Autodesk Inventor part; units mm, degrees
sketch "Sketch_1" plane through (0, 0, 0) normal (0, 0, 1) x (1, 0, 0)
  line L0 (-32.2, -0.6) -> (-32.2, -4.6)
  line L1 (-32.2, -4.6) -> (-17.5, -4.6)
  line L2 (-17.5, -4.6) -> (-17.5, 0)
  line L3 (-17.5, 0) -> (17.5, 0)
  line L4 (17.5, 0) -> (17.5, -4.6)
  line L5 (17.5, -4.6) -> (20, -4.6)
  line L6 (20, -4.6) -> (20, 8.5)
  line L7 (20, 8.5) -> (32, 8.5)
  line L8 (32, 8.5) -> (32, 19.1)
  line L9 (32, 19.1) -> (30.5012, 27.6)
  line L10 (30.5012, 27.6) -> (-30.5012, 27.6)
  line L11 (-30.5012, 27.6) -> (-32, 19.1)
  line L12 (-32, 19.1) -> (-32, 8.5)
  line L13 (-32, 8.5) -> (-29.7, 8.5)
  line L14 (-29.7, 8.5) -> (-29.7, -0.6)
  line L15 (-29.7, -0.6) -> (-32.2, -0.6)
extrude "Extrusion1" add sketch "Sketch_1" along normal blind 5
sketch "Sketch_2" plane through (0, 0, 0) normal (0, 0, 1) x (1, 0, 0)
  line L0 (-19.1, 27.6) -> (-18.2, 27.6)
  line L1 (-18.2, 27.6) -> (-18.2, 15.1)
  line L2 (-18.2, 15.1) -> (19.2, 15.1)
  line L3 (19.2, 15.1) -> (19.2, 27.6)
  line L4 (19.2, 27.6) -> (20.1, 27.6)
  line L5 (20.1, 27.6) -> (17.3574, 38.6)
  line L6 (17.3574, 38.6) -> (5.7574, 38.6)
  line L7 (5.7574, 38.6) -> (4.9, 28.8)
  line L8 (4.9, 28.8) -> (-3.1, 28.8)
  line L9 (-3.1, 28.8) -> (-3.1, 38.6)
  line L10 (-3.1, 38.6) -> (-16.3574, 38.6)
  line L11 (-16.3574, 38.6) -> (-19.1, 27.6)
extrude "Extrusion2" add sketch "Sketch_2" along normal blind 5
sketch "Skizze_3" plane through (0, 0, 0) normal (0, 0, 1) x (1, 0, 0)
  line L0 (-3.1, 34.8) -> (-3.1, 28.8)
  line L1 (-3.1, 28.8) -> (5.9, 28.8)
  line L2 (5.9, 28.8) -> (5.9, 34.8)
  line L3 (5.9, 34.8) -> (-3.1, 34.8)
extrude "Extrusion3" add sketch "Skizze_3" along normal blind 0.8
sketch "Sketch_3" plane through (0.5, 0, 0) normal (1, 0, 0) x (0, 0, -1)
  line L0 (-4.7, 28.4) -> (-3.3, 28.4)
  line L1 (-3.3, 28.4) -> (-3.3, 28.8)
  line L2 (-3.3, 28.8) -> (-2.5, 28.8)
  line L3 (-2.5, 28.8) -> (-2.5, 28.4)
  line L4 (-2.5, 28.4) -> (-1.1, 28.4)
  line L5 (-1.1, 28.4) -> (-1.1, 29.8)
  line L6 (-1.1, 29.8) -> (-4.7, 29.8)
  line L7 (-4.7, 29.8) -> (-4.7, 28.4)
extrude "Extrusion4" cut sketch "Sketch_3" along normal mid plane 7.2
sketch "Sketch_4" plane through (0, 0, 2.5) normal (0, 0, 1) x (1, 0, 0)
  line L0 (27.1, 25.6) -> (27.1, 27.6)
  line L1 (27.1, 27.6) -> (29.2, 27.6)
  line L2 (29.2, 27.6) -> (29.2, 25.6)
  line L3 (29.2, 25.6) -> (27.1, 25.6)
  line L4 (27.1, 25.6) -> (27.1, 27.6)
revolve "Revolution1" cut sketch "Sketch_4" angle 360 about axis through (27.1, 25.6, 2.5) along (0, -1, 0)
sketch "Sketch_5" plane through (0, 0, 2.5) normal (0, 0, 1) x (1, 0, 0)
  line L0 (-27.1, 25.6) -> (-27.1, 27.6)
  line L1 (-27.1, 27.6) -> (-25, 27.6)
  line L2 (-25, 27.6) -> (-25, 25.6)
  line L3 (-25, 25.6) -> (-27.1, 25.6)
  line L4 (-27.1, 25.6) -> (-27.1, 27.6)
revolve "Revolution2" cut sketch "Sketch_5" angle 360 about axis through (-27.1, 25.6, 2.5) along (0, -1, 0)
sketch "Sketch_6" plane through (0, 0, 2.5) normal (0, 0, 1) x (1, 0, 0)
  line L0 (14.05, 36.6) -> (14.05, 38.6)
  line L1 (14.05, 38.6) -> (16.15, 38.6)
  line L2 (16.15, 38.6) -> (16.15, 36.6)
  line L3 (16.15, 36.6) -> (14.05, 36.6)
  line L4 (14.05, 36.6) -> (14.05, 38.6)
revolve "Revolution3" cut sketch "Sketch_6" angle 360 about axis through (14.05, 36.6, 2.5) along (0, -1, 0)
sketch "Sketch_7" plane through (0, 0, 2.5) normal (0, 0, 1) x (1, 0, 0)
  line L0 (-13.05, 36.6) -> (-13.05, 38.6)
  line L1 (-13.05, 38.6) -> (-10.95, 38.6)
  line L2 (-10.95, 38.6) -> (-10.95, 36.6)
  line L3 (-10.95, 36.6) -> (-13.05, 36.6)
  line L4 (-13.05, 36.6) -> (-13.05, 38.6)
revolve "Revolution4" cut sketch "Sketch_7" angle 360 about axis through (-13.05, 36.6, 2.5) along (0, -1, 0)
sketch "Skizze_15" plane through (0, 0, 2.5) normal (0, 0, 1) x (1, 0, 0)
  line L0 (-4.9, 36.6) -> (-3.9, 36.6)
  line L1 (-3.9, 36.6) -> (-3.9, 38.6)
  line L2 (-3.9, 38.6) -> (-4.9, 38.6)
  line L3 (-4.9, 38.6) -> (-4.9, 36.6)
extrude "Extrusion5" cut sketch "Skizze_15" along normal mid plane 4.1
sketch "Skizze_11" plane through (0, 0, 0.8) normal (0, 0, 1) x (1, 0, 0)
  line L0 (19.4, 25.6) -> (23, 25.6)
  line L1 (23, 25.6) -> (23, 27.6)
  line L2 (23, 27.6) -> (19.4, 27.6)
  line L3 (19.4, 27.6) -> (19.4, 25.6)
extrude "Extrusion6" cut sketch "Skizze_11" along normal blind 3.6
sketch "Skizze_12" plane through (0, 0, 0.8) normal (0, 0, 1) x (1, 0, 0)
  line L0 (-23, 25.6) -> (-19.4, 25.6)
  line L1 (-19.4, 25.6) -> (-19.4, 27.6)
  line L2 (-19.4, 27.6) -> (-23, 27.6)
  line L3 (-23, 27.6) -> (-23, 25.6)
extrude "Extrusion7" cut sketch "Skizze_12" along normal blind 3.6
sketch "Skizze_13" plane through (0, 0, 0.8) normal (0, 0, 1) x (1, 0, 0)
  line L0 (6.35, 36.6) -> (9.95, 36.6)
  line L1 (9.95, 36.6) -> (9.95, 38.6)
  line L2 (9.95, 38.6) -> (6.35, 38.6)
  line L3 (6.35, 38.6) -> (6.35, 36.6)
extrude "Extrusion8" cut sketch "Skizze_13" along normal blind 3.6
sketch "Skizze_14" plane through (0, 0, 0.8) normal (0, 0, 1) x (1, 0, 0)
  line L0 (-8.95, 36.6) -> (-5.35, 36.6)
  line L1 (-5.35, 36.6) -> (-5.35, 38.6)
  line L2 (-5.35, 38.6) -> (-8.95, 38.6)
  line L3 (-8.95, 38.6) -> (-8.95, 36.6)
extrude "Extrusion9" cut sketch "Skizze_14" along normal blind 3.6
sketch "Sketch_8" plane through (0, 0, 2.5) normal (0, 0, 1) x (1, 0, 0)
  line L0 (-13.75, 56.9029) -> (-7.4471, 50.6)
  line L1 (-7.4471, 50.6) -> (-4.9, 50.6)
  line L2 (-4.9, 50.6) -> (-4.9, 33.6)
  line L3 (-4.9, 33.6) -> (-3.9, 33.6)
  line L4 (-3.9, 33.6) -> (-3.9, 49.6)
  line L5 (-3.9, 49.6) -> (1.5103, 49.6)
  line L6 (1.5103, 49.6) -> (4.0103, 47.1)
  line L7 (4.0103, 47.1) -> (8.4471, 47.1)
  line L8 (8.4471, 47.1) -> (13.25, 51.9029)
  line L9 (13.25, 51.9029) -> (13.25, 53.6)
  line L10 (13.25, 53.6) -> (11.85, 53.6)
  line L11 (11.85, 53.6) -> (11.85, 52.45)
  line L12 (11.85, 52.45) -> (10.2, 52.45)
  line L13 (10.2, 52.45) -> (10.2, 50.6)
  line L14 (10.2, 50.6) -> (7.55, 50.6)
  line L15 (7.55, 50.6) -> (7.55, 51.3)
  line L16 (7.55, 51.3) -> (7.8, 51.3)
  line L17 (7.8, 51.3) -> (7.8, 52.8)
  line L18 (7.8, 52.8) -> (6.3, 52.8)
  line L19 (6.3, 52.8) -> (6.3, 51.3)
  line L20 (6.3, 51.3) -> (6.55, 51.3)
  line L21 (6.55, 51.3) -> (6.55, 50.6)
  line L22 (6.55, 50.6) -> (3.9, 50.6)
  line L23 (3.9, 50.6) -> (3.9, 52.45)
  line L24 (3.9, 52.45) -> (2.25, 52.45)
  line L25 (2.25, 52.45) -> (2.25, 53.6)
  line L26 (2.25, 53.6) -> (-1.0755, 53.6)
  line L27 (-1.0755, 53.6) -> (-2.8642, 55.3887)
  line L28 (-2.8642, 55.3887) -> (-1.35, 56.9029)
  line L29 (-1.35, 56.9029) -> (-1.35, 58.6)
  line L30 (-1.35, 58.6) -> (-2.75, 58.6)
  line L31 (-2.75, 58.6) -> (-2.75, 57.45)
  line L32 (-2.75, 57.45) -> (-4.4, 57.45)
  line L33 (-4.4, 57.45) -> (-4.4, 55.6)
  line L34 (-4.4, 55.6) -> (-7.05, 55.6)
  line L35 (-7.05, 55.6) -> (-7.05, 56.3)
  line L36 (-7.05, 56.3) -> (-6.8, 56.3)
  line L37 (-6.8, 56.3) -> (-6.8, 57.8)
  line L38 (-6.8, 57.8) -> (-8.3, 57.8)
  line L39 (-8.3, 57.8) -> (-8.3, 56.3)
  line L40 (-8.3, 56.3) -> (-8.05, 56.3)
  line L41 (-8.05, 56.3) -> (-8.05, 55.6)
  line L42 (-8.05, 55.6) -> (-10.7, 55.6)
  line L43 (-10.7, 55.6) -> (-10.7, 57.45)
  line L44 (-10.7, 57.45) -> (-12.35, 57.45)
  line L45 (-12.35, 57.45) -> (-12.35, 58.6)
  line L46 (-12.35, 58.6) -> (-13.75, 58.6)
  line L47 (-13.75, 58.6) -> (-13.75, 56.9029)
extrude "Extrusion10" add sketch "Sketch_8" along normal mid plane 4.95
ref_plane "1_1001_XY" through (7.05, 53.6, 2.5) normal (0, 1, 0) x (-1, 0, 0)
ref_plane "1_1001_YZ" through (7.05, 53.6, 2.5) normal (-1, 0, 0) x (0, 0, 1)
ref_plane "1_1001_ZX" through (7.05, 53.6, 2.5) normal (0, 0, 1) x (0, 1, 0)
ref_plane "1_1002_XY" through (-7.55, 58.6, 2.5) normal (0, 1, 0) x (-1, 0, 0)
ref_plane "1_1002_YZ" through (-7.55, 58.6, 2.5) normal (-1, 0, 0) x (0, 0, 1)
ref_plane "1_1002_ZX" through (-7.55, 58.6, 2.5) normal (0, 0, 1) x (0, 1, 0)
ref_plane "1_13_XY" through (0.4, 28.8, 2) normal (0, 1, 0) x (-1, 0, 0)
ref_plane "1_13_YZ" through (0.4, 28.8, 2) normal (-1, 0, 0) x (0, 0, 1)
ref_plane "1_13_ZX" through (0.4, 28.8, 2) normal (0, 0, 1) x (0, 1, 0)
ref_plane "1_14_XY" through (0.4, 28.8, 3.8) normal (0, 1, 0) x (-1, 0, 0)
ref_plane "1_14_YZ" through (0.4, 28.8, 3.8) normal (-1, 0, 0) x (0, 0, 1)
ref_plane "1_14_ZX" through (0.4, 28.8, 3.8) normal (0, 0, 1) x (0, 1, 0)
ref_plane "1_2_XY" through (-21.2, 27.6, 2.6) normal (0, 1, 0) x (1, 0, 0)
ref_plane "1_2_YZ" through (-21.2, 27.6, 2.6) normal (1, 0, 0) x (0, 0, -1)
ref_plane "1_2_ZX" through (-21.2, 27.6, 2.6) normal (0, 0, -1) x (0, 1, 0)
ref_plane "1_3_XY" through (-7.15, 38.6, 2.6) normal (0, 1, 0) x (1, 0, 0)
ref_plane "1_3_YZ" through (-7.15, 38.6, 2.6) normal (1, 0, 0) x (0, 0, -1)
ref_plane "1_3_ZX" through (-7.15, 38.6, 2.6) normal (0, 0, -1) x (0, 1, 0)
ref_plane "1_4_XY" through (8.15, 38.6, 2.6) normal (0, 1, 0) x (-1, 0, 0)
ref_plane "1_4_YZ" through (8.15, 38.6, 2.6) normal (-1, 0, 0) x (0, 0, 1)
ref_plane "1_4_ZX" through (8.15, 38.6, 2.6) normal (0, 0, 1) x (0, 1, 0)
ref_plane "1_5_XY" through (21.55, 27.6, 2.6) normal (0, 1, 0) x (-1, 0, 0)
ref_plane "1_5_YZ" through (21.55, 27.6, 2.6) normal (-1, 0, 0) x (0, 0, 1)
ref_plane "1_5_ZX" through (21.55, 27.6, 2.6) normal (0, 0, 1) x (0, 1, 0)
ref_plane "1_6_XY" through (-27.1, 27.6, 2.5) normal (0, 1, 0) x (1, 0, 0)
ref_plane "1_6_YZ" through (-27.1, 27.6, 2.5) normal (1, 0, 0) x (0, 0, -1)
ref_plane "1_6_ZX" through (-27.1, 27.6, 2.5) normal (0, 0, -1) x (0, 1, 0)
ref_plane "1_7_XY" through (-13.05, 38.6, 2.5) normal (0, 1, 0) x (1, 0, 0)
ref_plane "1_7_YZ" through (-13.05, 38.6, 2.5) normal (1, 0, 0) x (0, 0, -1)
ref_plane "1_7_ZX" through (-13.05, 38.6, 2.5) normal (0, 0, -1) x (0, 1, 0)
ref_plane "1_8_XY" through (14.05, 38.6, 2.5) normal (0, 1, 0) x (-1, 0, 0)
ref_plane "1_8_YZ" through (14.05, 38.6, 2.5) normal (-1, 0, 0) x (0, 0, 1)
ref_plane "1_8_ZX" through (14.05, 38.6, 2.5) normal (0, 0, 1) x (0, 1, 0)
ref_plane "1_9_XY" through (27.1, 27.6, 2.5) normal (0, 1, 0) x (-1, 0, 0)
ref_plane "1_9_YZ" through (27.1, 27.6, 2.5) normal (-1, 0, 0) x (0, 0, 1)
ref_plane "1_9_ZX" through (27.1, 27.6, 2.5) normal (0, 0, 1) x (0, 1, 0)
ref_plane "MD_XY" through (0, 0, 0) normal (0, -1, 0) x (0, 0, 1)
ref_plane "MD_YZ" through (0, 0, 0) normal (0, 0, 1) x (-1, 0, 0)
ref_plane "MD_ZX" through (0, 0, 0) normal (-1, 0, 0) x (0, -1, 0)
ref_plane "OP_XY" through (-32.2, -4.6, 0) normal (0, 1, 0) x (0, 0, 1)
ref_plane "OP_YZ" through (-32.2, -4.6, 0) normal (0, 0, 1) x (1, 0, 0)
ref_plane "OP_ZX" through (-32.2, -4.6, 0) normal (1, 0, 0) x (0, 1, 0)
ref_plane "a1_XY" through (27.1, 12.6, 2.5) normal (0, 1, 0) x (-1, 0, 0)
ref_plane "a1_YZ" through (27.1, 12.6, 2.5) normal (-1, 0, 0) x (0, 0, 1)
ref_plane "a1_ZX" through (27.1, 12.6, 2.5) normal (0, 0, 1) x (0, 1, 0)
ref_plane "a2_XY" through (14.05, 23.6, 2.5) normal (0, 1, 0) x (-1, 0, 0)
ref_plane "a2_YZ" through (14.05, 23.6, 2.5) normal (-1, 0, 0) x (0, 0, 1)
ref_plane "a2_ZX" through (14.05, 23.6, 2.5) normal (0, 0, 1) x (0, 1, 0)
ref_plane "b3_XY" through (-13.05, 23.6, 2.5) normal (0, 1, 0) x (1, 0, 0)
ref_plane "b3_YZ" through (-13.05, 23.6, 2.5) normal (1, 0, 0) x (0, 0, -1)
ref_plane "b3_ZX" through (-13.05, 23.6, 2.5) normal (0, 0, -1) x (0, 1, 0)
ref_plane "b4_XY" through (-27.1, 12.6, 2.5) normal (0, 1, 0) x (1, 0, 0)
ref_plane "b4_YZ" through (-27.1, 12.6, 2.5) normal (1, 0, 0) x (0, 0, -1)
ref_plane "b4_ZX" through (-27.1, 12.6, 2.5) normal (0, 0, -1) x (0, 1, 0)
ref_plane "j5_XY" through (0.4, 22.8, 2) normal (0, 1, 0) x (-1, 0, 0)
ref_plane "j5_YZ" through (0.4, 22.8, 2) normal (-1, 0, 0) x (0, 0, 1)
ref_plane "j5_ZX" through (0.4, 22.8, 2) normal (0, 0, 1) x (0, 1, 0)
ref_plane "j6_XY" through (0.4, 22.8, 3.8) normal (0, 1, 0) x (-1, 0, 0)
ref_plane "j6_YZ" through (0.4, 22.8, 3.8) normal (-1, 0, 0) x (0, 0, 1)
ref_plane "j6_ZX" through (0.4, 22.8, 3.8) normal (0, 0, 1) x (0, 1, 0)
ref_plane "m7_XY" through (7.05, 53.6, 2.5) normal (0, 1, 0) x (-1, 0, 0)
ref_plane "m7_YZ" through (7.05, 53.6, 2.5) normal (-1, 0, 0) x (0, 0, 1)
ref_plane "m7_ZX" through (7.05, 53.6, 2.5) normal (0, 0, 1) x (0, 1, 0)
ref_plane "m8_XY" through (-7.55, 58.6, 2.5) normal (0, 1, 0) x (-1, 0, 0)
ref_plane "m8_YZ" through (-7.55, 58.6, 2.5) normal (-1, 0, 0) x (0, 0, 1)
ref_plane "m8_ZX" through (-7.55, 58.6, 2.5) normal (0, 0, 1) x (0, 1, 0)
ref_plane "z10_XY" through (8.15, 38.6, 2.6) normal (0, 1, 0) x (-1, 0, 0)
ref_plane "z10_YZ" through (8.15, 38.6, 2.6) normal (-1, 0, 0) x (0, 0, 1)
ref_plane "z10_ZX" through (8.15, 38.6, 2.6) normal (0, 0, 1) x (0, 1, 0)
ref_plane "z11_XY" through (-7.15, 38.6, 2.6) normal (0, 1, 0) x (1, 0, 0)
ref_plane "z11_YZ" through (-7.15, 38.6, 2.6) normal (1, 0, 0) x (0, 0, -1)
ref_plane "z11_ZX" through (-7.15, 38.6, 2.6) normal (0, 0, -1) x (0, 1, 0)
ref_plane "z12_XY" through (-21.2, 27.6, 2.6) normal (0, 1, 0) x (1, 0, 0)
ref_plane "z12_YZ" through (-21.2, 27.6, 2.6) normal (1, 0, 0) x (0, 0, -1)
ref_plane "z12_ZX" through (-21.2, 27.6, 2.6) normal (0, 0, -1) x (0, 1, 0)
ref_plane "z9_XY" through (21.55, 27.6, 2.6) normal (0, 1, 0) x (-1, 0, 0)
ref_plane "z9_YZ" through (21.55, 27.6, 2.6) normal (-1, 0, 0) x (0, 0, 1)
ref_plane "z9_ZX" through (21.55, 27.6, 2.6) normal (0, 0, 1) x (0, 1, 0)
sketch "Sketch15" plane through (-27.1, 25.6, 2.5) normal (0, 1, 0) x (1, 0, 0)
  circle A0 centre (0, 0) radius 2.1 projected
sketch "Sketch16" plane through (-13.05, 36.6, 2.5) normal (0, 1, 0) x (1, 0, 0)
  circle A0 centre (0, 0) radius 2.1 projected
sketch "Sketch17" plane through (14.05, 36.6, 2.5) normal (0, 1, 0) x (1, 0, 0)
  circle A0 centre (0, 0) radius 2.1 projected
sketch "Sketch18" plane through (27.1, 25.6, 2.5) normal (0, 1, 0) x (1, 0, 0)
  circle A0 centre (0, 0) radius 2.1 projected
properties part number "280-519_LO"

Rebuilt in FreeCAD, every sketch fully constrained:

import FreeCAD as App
import Part
import Sketcher
from FreeCAD import Vector
Q = App.Units.Quantity


def add_polygon(sketch, points):
    """Adds a closed chain of lines whose ends are joined by coincident constraints."""
    first, n = sketch.GeometryCount, len(points)
    for a, b in zip(points, points[1:] + points[:1]):
        sketch.addGeometry(Part.LineSegment(App.Vector(*a, 0), App.Vector(*b, 0)), False)
    for i in range(n):
        sketch.addConstraint(Sketcher.Constraint("Coincident", first + i, 2, first + (i + 1) % n, 1))

doc = App.newDocument("Part")
body = doc.addObject("PartDesign::Body", "Body")

# Sketch on XY plane
sketch1 = body.newObject("Sketcher::SketchObject", "Sketch")
sketch1.AttachmentSupport = (doc.getObject("XY_Plane"), [""])
sketch1.MapMode = "FlatFace"
add_polygon(sketch1, [(-29.7, -0.6), (-32.2, -0.6), (-32.2, -4.6), (-17.5, -4.6), (-17.5, 0), (17.5, 0), (17.5, -4.6), (20, -4.6), (20, 8.5), (32, 8.5), (32, 19.1), (30.5012, 27.6), (-30.5012, 27.6), (-32, 19.1), (-32, 8.5), (-29.7, 8.5)])  # lines 0-15
sketch1.addConstraint(Sketcher.Constraint("Horizontal", 0))
sketch1.addConstraint(Sketcher.Constraint("Vertical", 1))
sketch1.addConstraint(Sketcher.Constraint("Horizontal", 2))
sketch1.addConstraint(Sketcher.Constraint("Vertical", 3))
sketch1.addConstraint(Sketcher.Constraint("Horizontal", 4))
sketch1.addConstraint(Sketcher.Constraint("Vertical", 5))
sketch1.addConstraint(Sketcher.Constraint("Horizontal", 6))
sketch1.addConstraint(Sketcher.Constraint("Vertical", 7))
sketch1.addConstraint(Sketcher.Constraint("Horizontal", 8))
sketch1.addConstraint(Sketcher.Constraint("Vertical", 9))
sketch1.addConstraint(Sketcher.Constraint("Horizontal", 11))
sketch1.addConstraint(Sketcher.Constraint("Vertical", 13))
sketch1.addConstraint(Sketcher.Constraint("Horizontal", 14))
sketch1.addConstraint(Sketcher.Constraint("Vertical", 15))
sketch1.addConstraint(Sketcher.Constraint("Symmetric", 3, 2, 4, 2, -1, 1))
sketch1.addConstraint(Sketcher.Constraint("Symmetric", 9, 2, 12, 2, -2))
sketch1.addConstraint(Sketcher.Constraint("Horizontal", 2, 2, 5, 2))
sketch1.addConstraint(Sketcher.Constraint("Horizontal", 8, 2, 13, 2))
sketch1.addConstraint(Sketcher.Constraint("Equal", 0, 6))
sketch1.addConstraint(Sketcher.Constraint("Equal", 10, 12))
sketch1.addConstraint(Sketcher.Constraint("DistanceX", 4, 1, 4, 2, 35.0))
sketch1.addConstraint(Sketcher.Constraint("DistanceX", 8, 1, 8, 2, 12.0))
sketch1.addConstraint(Sketcher.Constraint("DistanceY", 1, 2, 1, 1, 4.0))
sketch1.addConstraint(Sketcher.Constraint("Angle", 10, Q("100.0001 deg")))
sketch1.addConstraint(Sketcher.Constraint("DistanceX", 0, 2, 0, 1, 2.5))
sketch1.addConstraint(Sketcher.Constraint("DistanceX", 2, 1, 2, 2, 14.7))
sketch1.addConstraint(Sketcher.Constraint("DistanceY", 3, 1, 3, 2, 4.6))
sketch1.addConstraint(Sketcher.Constraint("DistanceY", 7, 1, 7, 2, 13.1))
sketch1.addConstraint(Sketcher.Constraint("DistanceY", 9, 1, 9, 2, 10.6))
sketch1.addConstraint(Sketcher.Constraint("DistanceY", -1, 1, 10, 2, 27.6))
pad1 = body.newObject("PartDesign::Pad", "Pad")
pad1.Profile = sketch1
pad1.Length = 5

# Sketch on XY plane
sketch2 = body.newObject("Sketcher::SketchObject", "Sketch001")
sketch2.AttachmentSupport = (doc.getObject("XY_Plane"), [""])
sketch2.MapMode = "FlatFace"
add_polygon(sketch2, [(-16.3574, 38.6), (-19.1, 27.6), (-18.2, 27.6), (-18.2, 15.1), (19.2, 15.1), (19.2, 27.6), (20.1, 27.6), (17.3574, 38.6), (5.7574, 38.6), (4.9, 28.8), (-3.1, 28.8), (-3.1, 38.6)])  # lines 0-11
sketch2.addConstraint(Sketcher.Constraint("Horizontal", 1))
sketch2.addConstraint(Sketcher.Constraint("Vertical", 2))
sketch2.addConstraint(Sketcher.Constraint("Horizontal", 3))
sketch2.addConstraint(Sketcher.Constraint("Vertical", 4))
sketch2.addConstraint(Sketcher.Constraint("Horizontal", 5))
sketch2.addConstraint(Sketcher.Constraint("Horizontal", 7))
sketch2.addConstraint(Sketcher.Constraint("Horizontal", 9))
sketch2.addConstraint(Sketcher.Constraint("Vertical", 10))
sketch2.addConstraint(Sketcher.Constraint("Horizontal", 11))
sketch2.addConstraint(Sketcher.Constraint("Horizontal", 1, 2, 4, 2))
sketch2.addConstraint(Sketcher.Constraint("Horizontal", 7, 2, 10, 2))
sketch2.addConstraint(Sketcher.Constraint("Equal", 1, 5))
sketch2.addConstraint(Sketcher.Constraint("Equal", 0, 6))
sketch2.addConstraint(Sketcher.Constraint("DistanceX", 9, 2, 9, 1, 8.0))
sketch2.addConstraint(Sketcher.Constraint("Angle", 0, Q("-104 deg")))
sketch2.addConstraint(Sketcher.Constraint("Angle", 8, Q("-95 deg")))
sketch2.addConstraint(Sketcher.Constraint("DistanceX", 1, 1, 1, 2, 0.9))
sketch2.addConstraint(Sketcher.Constraint("DistanceX", 3, 1, 3, 2, 37.4))
sketch2.addConstraint(Sketcher.Constraint("DistanceX", 7, 2, 7, 1, 11.6))
sketch2.addConstraint(Sketcher.Constraint("DistanceY", 2, 2, 2, 1, 12.5))
sketch2.addConstraint(Sketcher.Constraint("DistanceY", 10, 1, 10, 2, 9.8))
sketch2.addConstraint(Sketcher.Constraint("DistanceY", 4, 2, 6, 2, 11.0))
sketch2.addConstraint(Sketcher.Constraint("DistanceX", 0, 2, -1, 1, 19.1))
sketch2.addConstraint(Sketcher.Constraint("DistanceY", -1, 1, 0, 2, 27.6))
pad2 = body.newObject("PartDesign::Pad", "Pad001")
pad2.Profile = sketch2
pad2.Length = 5

# Sketch on XY plane
sketch3 = body.newObject("Sketcher::SketchObject", "Sketch002")
sketch3.AttachmentSupport = (doc.getObject("XY_Plane"), [""])
sketch3.MapMode = "FlatFace"
add_polygon(sketch3, [(5.9, 34.8), (-3.1, 34.8), (-3.1, 28.8), (5.9, 28.8)])  # lines 0-3
sketch3.addConstraint(Sketcher.Constraint("Horizontal", 0))
sketch3.addConstraint(Sketcher.Constraint("Vertical", 1))
sketch3.addConstraint(Sketcher.Constraint("Horizontal", 2))
sketch3.addConstraint(Sketcher.Constraint("Vertical", 3))
sketch3.addConstraint(Sketcher.Constraint("DistanceX", 0, 2, 0, 1, 9.0))
sketch3.addConstraint(Sketcher.Constraint("DistanceY", 1, 2, 1, 1, 6.0))
sketch3.addConstraint(Sketcher.Constraint("DistanceX", 0, 2, -1, 1, 3.1))
sketch3.addConstraint(Sketcher.Constraint("DistanceY", -1, 1, 0, 2, 34.8))
pad3 = body.newObject("PartDesign::Pad", "Pad002")
pad3.Profile = sketch3
pad3.Length = 0.8

# Sketch on YZ plane
sketch4 = body.newObject("Sketcher::SketchObject", "Sketch003")
sketch4.AttachmentSupport = (doc.getObject("YZ_Plane"), [""])
sketch4.MapMode = "FlatFace"
sketch4.AttachmentOffset = App.Placement(Vector(0, 0, 0.5), App.Rotation())
add_polygon(sketch4, [(29.8, 4.7), (28.4, 4.7), (28.4, 3.3), (28.8, 3.3), (28.8, 2.5), (28.4, 2.5), (28.4, 1.1), (29.8, 1.1)])  # lines 0-7
sketch4.addConstraint(Sketcher.Constraint("Horizontal", 0))
sketch4.addConstraint(Sketcher.Constraint("Vertical", 1))
sketch4.addConstraint(Sketcher.Constraint("Horizontal", 2))
sketch4.addConstraint(Sketcher.Constraint("Vertical", 3))
sketch4.addConstraint(Sketcher.Constraint("Horizontal", 4))
sketch4.addConstraint(Sketcher.Constraint("Vertical", 5))
sketch4.addConstraint(Sketcher.Constraint("Horizontal", 6))
sketch4.addConstraint(Sketcher.Constraint("Vertical", 7))
sketch4.addConstraint(Sketcher.Constraint("Vertical", 1, 2, 4, 2))
sketch4.addConstraint(Sketcher.Constraint("Equal", 6, 1))
sketch4.addConstraint(Sketcher.Constraint("Equal", 1, 5))
sketch4.addConstraint(Sketcher.Constraint("DistanceX", 0, 2, 0, 1, 1.4))
sketch4.addConstraint(Sketcher.Constraint("DistanceX", 2, 1, 2, 2, 0.4))
sketch4.addConstraint(Sketcher.Constraint("DistanceY", 3, 2, 3, 1, 0.8))
sketch4.addConstraint(Sketcher.Constraint("DistanceX", -1, 1, 0, 2, 28.4))
sketch4.addConstraint(Sketcher.Constraint("DistanceY", -1, 1, 0, 2, 4.7))
pocket1 = body.newObject("PartDesign::Pocket", "Pocket")
pocket1.Profile = sketch4
pocket1.Length = 7.2
pocket1.Midplane = True

# Sketch on XY plane
sketch5 = body.newObject("Sketcher::SketchObject", "Sketch004")
sketch5.AttachmentSupport = (doc.getObject("XY_Plane"), [""])
sketch5.MapMode = "FlatFace"
sketch5.AttachmentOffset = App.Placement(Vector(0, 0, 2.5), App.Rotation())
add_polygon(sketch5, [(27.1, 27.6), (27.1, 25.6), (29.2, 25.6), (29.2, 27.6)])  # lines 0-3
sketch5.addGeometry(Part.LineSegment(Vector(27.1, 27.6, 0), Vector(27.1, 25.6, 0)), True)  # axis
sketch5.addConstraint(Sketcher.Constraint("Vertical", 0))
sketch5.addConstraint(Sketcher.Constraint("Horizontal", 1))
sketch5.addConstraint(Sketcher.Constraint("Vertical", 2))
sketch5.addConstraint(Sketcher.Constraint("Horizontal", 3))
sketch5.addConstraint(Sketcher.Constraint("Vertical", 4))
sketch5.addConstraint(Sketcher.Constraint("Coincident", 4, 1, 3, 2))
sketch5.addConstraint(Sketcher.Constraint("Horizontal", 1, 2, 4, 2))
sketch5.addConstraint(Sketcher.Constraint("DistanceY", 0, 2, 0, 1, 2.0))
sketch5.addConstraint(Sketcher.Constraint("DistanceX", 1, 1, 1, 2, 2.1))
sketch5.addConstraint(Sketcher.Constraint("DistanceX", -1, 1, 0, 2, 27.1))
sketch5.addConstraint(Sketcher.Constraint("DistanceY", -1, 1, 0, 2, 25.6))
groove = body.newObject("PartDesign::Groove", "Groove")
groove.Profile = sketch5
groove.ReferenceAxis = (sketch5, ["Axis0"])
groove.Angle = 360

# Sketch on XY plane
sketch6 = body.newObject("Sketcher::SketchObject", "Sketch005")
sketch6.AttachmentSupport = (doc.getObject("XY_Plane"), [""])
sketch6.MapMode = "FlatFace"
sketch6.AttachmentOffset = App.Placement(Vector(0, 0, 2.5), App.Rotation())
add_polygon(sketch6, [(-27.1, 27.6), (-27.1, 25.6), (-25, 25.6), (-25, 27.6)])  # lines 0-3
sketch6.addGeometry(Part.LineSegment(Vector(-27.1, 27.6, 0), Vector(-27.1, 25.6, 0)), True)  # axis
sketch6.addConstraint(Sketcher.Constraint("Vertical", 0))
sketch6.addConstraint(Sketcher.Constraint("Horizontal", 1))
sketch6.addConstraint(Sketcher.Constraint("Vertical", 2))
sketch6.addConstraint(Sketcher.Constraint("Horizontal", 3))
sketch6.addConstraint(Sketcher.Constraint("Vertical", 4))
sketch6.addConstraint(Sketcher.Constraint("Coincident", 4, 1, 3, 2))
sketch6.addConstraint(Sketcher.Constraint("Horizontal", 1, 2, 4, 2))
sketch6.addConstraint(Sketcher.Constraint("DistanceY", 0, 2, 0, 1, 2.0))
sketch6.addConstraint(Sketcher.Constraint("DistanceX", 1, 1, 1, 2, 2.1))
sketch6.addConstraint(Sketcher.Constraint("DistanceX", 1, 2, -1, 1, 25.0))
sketch6.addConstraint(Sketcher.Constraint("DistanceY", -1, 1, 0, 2, 25.6))
groove2 = body.newObject("PartDesign::Groove", "Groove001")
groove2.Profile = sketch6
groove2.ReferenceAxis = (sketch6, ["Axis0"])
groove2.Angle = 360

# Sketch on XY plane
sketch7 = body.newObject("Sketcher::SketchObject", "Sketch006")
sketch7.AttachmentSupport = (doc.getObject("XY_Plane"), [""])
sketch7.MapMode = "FlatFace"
sketch7.AttachmentOffset = App.Placement(Vector(0, 0, 2.5), App.Rotation())
add_polygon(sketch7, [(14.05, 38.6), (14.05, 36.6), (16.15, 36.6), (16.15, 38.6)])  # lines 0-3
sketch7.addGeometry(Part.LineSegment(Vector(14.05, 38.6, 0), Vector(14.05, 36.6, 0)), True)  # axis
sketch7.addConstraint(Sketcher.Constraint("Vertical", 0))
sketch7.addConstraint(Sketcher.Constraint("Horizontal", 1))
sketch7.addConstraint(Sketcher.Constraint("Vertical", 2))
sketch7.addConstraint(Sketcher.Constraint("Horizontal", 3))
sketch7.addConstraint(Sketcher.Constraint("Vertical", 4))
sketch7.addConstraint(Sketcher.Constraint("Coincident", 4, 1, 3, 2))
sketch7.addConstraint(Sketcher.Constraint("Horizontal", 1, 2, 4, 2))
sketch7.addConstraint(Sketcher.Constraint("DistanceY", 0, 2, 0, 1, 2.0))
sketch7.addConstraint(Sketcher.Constraint("DistanceX", 1, 1, 1, 2, 2.1))
sketch7.addConstraint(Sketcher.Constraint("DistanceY", -1, 1, 0, 2, 36.6))
sketch7.addConstraint(Sketcher.Constraint("DistanceX", -1, 1, 0, 2, 14.05))
groove3 = body.newObject("PartDesign::Groove", "Groove002")
groove3.Profile = sketch7
groove3.ReferenceAxis = (sketch7, ["Axis0"])
groove3.Angle = 360

# Sketch on XY plane
sketch8 = body.newObject("Sketcher::SketchObject", "Sketch007")
sketch8.AttachmentSupport = (doc.getObject("XY_Plane"), [""])
sketch8.MapMode = "FlatFace"
sketch8.AttachmentOffset = App.Placement(Vector(0, 0, 2.5), App.Rotation())
add_polygon(sketch8, [(-13.05, 38.6), (-13.05, 36.6), (-10.95, 36.6), (-10.95, 38.6)])  # lines 0-3
sketch8.addGeometry(Part.LineSegment(Vector(-13.05, 38.6, 0), Vector(-13.05, 36.6, 0)), True)  # axis
sketch8.addConstraint(Sketcher.Constraint("Vertical", 0))
sketch8.addConstraint(Sketcher.Constraint("Horizontal", 1))
sketch8.addConstraint(Sketcher.Constraint("Vertical", 2))
sketch8.addConstraint(Sketcher.Constraint("Horizontal", 3))
sketch8.addConstraint(Sketcher.Constraint("Vertical", 4))
sketch8.addConstraint(Sketcher.Constraint("Coincident", 4, 1, 3, 2))
sketch8.addConstraint(Sketcher.Constraint("Horizontal", 1, 2, 4, 2))
sketch8.addConstraint(Sketcher.Constraint("DistanceY", 0, 2, 0, 1, 2.0))
sketch8.addConstraint(Sketcher.Constraint("DistanceX", 1, 1, 1, 2, 2.1))
sketch8.addConstraint(Sketcher.Constraint("DistanceY", -1, 1, 0, 2, 36.6))
sketch8.addConstraint(Sketcher.Constraint("DistanceX", 0, 2, -1, 1, 13.05))
groove4 = body.newObject("PartDesign::Groove", "Groove003")
groove4.Profile = sketch8
groove4.ReferenceAxis = (sketch8, ["Axis0"])
groove4.Angle = 360

# Sketch on XY plane
sketch9 = body.newObject("Sketcher::SketchObject", "Sketch008")
sketch9.AttachmentSupport = (doc.getObject("XY_Plane"), [""])
sketch9.MapMode = "FlatFace"
sketch9.AttachmentOffset = App.Placement(Vector(0, 0, 2.5), App.Rotation())
add_polygon(sketch9, [(-4.9, 38.6), (-4.9, 36.6), (-3.9, 36.6), (-3.9, 38.6)])  # lines 0-3
sketch9.addConstraint(Sketcher.Constraint("Vertical", 0))
sketch9.addConstraint(Sketcher.Constraint("Horizontal", 1))
sketch9.addConstraint(Sketcher.Constraint("Vertical", 2))
sketch9.addConstraint(Sketcher.Constraint("Horizontal", 3))
sketch9.addConstraint(Sketcher.Constraint("DistanceX", 1, 1, 1, 2, 1.0))
sketch9.addConstraint(Sketcher.Constraint("DistanceY", 0, 2, 0, 1, 2.0))
sketch9.addConstraint(Sketcher.Constraint("DistanceX", 0, 2, -1, 1, 4.9))
sketch9.addConstraint(Sketcher.Constraint("DistanceY", -1, 1, 0, 2, 36.6))
pocket2 = body.newObject("PartDesign::Pocket", "Pocket001")
pocket2.Profile = sketch9
pocket2.Length = 4.1
pocket2.Midplane = True

# Sketch on XY plane
sketch10 = body.newObject("Sketcher::SketchObject", "Sketch009")
sketch10.AttachmentSupport = (doc.getObject("XY_Plane"), [""])
sketch10.MapMode = "FlatFace"
sketch10.AttachmentOffset = App.Placement(Vector(0, 0, 0.8), App.Rotation())
add_polygon(sketch10, [(19.4, 27.6), (19.4, 25.6), (23, 25.6), (23, 27.6)])  # lines 0-3
sketch10.addConstraint(Sketcher.Constraint("Vertical", 0))
sketch10.addConstraint(Sketcher.Constraint("Horizontal", 1))
sketch10.addConstraint(Sketcher.Constraint("Vertical", 2))
sketch10.addConstraint(Sketcher.Constraint("Horizontal", 3))
sketch10.addConstraint(Sketcher.Constraint("DistanceY", 0, 2, 0, 1, 2.0))
sketch10.addConstraint(Sketcher.Constraint("DistanceX", 1, 1, 1, 2, 3.6))
sketch10.addConstraint(Sketcher.Constraint("DistanceX", -1, 1, 1, 2, 23.0))
sketch10.addConstraint(Sketcher.Constraint("DistanceY", -1, 1, 0, 2, 25.6))
pocket3 = body.newObject("PartDesign::Pocket", "Pocket002")
pocket3.Profile = sketch10
pocket3.Length = 3.6
pocket3.Reversed = True

# Sketch on XY plane
sketch11 = body.newObject("Sketcher::SketchObject", "Sketch010")
sketch11.AttachmentSupport = (doc.getObject("XY_Plane"), [""])
sketch11.MapMode = "FlatFace"
sketch11.AttachmentOffset = App.Placement(Vector(0, 0, 0.8), App.Rotation())
add_polygon(sketch11, [(-23, 27.6), (-23, 25.6), (-19.4, 25.6), (-19.4, 27.6)])  # lines 0-3
sketch11.addConstraint(Sketcher.Constraint("Vertical", 0))
sketch11.addConstraint(Sketcher.Constraint("Horizontal", 1))
sketch11.addConstraint(Sketcher.Constraint("Vertical", 2))
sketch11.addConstraint(Sketcher.Constraint("Horizontal", 3))
sketch11.addConstraint(Sketcher.Constraint("DistanceY", 0, 2, 0, 1, 2.0))
sketch11.addConstraint(Sketcher.Constraint("DistanceX", 1, 1, 1, 2, 3.6))
sketch11.addConstraint(Sketcher.Constraint("DistanceX", 0, 2, -1, 1, 23.0))
sketch11.addConstraint(Sketcher.Constraint("DistanceY", -1, 1, 0, 2, 25.6))
pocket4 = body.newObject("PartDesign::Pocket", "Pocket003")
pocket4.Profile = sketch11
pocket4.Length = 3.6
pocket4.Reversed = True

# Sketch on XY plane
sketch12 = body.newObject("Sketcher::SketchObject", "Sketch011")
sketch12.AttachmentSupport = (doc.getObject("XY_Plane"), [""])
sketch12.MapMode = "FlatFace"
sketch12.AttachmentOffset = App.Placement(Vector(0, 0, 0.8), App.Rotation())
add_polygon(sketch12, [(6.35, 38.6), (6.35, 36.6), (9.95, 36.6), (9.95, 38.6)])  # lines 0-3
sketch12.addConstraint(Sketcher.Constraint("Vertical", 0))
sketch12.addConstraint(Sketcher.Constraint("Horizontal", 1))
sketch12.addConstraint(Sketcher.Constraint("Vertical", 2))
sketch12.addConstraint(Sketcher.Constraint("Horizontal", 3))
sketch12.addConstraint(Sketcher.Constraint("DistanceY", 0, 2, 0, 1, 2.0))
sketch12.addConstraint(Sketcher.Constraint("DistanceX", 1, 1, 1, 2, 3.6))
sketch12.addConstraint(Sketcher.Constraint("DistanceY", -1, 1, 0, 2, 36.6))
sketch12.addConstraint(Sketcher.Constraint("DistanceX", -1, 1, 0, 2, 6.35))
pocket5 = body.newObject("PartDesign::Pocket", "Pocket004")
pocket5.Profile = sketch12
pocket5.Length = 3.6
pocket5.Reversed = True

# Sketch on XY plane
sketch13 = body.newObject("Sketcher::SketchObject", "Sketch012")
sketch13.AttachmentSupport = (doc.getObject("XY_Plane"), [""])
sketch13.MapMode = "FlatFace"
sketch13.AttachmentOffset = App.Placement(Vector(0, 0, 0.8), App.Rotation())
add_polygon(sketch13, [(-8.95, 38.6), (-8.95, 36.6), (-5.35, 36.6), (-5.35, 38.6)])  # lines 0-3
sketch13.addConstraint(Sketcher.Constraint("Vertical", 0))
sketch13.addConstraint(Sketcher.Constraint("Horizontal", 1))
sketch13.addConstraint(Sketcher.Constraint("Vertical", 2))
sketch13.addConstraint(Sketcher.Constraint("Horizontal", 3))
sketch13.addConstraint(Sketcher.Constraint("DistanceY", 0, 2, 0, 1, 2.0))
sketch13.addConstraint(Sketcher.Constraint("DistanceX", 1, 1, 1, 2, 3.6))
sketch13.addConstraint(Sketcher.Constraint("DistanceY", -1, 1, 0, 2, 36.6))
sketch13.addConstraint(Sketcher.Constraint("DistanceX", 0, 2, -1, 1, 8.95))
pocket6 = body.newObject("PartDesign::Pocket", "Pocket005")
pocket6.Profile = sketch13
pocket6.Length = 3.6
pocket6.Reversed = True

# Sketch on XY plane
sketch14 = body.newObject("Sketcher::SketchObject", "Sketch013")
sketch14.AttachmentSupport = (doc.getObject("XY_Plane"), [""])
sketch14.MapMode = "FlatFace"
sketch14.AttachmentOffset = App.Placement(Vector(0, 0, 2.5), App.Rotation())
add_polygon(sketch14, [(-13.75, 58.6), (-13.75, 56.9029), (-7.4471, 50.6), (-4.9, 50.6), (-4.9, 33.6), (-3.9, 33.6), (-3.9, 49.6), (1.5103, 49.6), (4.0103, 47.1), (8.4471, 47.1), (13.25, 51.9029), (13.25, 53.6), (11.85, 53.6), (11.85, 52.45), (10.2, 52.45), (10.2, 50.6), (7.55, 50.6), (7.55, 51.3), (7.8, 51.3), (7.8, 52.8), (6.3, 52.8), (6.3, 51.3), (6.55, 51.3), (6.55, 50.6), (3.9, 50.6), (3.9, 52.45), (2.25, 52.45), (2.25, 53.6), (-1.0755, 53.6), (-2.8642, 55.3887), (-1.35, 56.9029), (-1.35, 58.6), (-2.75, 58.6), (-2.75, 57.45), (-4.4, 57.45), (-4.4, 55.6), (-7.05, 55.6), (-7.05, 56.3), (-6.8, 56.3), (-6.8, 57.8), (-8.3, 57.8), (-8.3, 56.3), (-8.05, 56.3), (-8.05, 55.6), (-10.7, 55.6), (-10.7, 57.45), (-12.35, 57.45), (-12.35, 58.6)])  # lines 0-47
sketch14.addConstraint(Sketcher.Constraint("Vertical", 0))
sketch14.addConstraint(Sketcher.Constraint("Horizontal", 2))
sketch14.addConstraint(Sketcher.Constraint("Vertical", 3))
sketch14.addConstraint(Sketcher.Constraint("Horizontal", 4))
sketch14.addConstraint(Sketcher.Constraint("Vertical", 5))
sketch14.addConstraint(Sketcher.Constraint("Horizontal", 6))
sketch14.addConstraint(Sketcher.Constraint("Horizontal", 8))
sketch14.addConstraint(Sketcher.Constraint("Vertical", 10))
sketch14.addConstraint(Sketcher.Constraint("Horizontal", 11))
sketch14.addConstraint(Sketcher.Constraint("Vertical", 12))
sketch14.addConstraint(Sketcher.Constraint("Horizontal", 13))
sketch14.addConstraint(Sketcher.Constraint("Vertical", 14))
sketch14.addConstraint(Sketcher.Constraint("Horizontal", 15))
sketch14.addConstraint(Sketcher.Constraint("Vertical", 16))
sketch14.addConstraint(Sketcher.Constraint("Horizontal", 17))
sketch14.addConstraint(Sketcher.Constraint("Vertical", 18))
sketch14.addConstraint(Sketcher.Constraint("Horizontal", 19))
sketch14.addConstraint(Sketcher.Constraint("Vertical", 20))
sketch14.addConstraint(Sketcher.Constraint("Horizontal", 21))
sketch14.addConstraint(Sketcher.Constraint("Vertical", 22))
sketch14.addConstraint(Sketcher.Constraint("Horizontal", 23))
sketch14.addConstraint(Sketcher.Constraint("Vertical", 24))
sketch14.addConstraint(Sketcher.Constraint("Horizontal", 25))
sketch14.addConstraint(Sketcher.Constraint("Vertical", 26))
sketch14.addConstraint(Sketcher.Constraint("Horizontal", 27))
sketch14.addConstraint(Sketcher.Constraint("Vertical", 30))
sketch14.addConstraint(Sketcher.Constraint("Horizontal", 31))
sketch14.addConstraint(Sketcher.Constraint("Vertical", 32))
sketch14.addConstraint(Sketcher.Constraint("Horizontal", 33))
sketch14.addConstraint(Sketcher.Constraint("Vertical", 34))
sketch14.addConstraint(Sketcher.Constraint("Horizontal", 35))
sketch14.addConstraint(Sketcher.Constraint("Vertical", 36))
sketch14.addConstraint(Sketcher.Constraint("Horizontal", 37))
sketch14.addConstraint(Sketcher.Constraint("Vertical", 38))
sketch14.addConstraint(Sketcher.Constraint("Horizontal", 39))
sketch14.addConstraint(Sketcher.Constraint("Vertical", 40))
sketch14.addConstraint(Sketcher.Constraint("Horizontal", 41))
sketch14.addConstraint(Sketcher.Constraint("Vertical", 42))
sketch14.addConstraint(Sketcher.Constraint("Horizontal", 43))
sketch14.addConstraint(Sketcher.Constraint("Vertical", 44))
sketch14.addConstraint(Sketcher.Constraint("Horizontal", 45))
sketch14.addConstraint(Sketcher.Constraint("Vertical", 46))
sketch14.addConstraint(Sketcher.Constraint("Horizontal", 47))
sketch14.addConstraint(Sketcher.Constraint("Parallel", 1, 7))
sketch14.addConstraint(Sketcher.Constraint("Perpendicular", 7, 9))
sketch14.addConstraint(Sketcher.Constraint("Perpendicular", 9, 28))
sketch14.addConstraint(Sketcher.Constraint("Perpendicular", 28, 29))
sketch14.addConstraint(Sketcher.Constraint("Horizontal", 2, 2, 14, 2))
sketch14.addConstraint(Sketcher.Constraint("Horizontal", 17, 2, 20, 2))
sketch14.addConstraint(Sketcher.Constraint("Horizontal", 15, 2, 22, 2))
sketch14.addConstraint(Sketcher.Constraint("Horizontal", 13, 2, 24, 2))
sketch14.addConstraint(Sketcher.Constraint("Horizontal", 11, 2, 26, 2))
sketch14.addConstraint(Sketcher.Constraint("Horizontal", 0, 2, 29, 2))
sketch14.addConstraint(Sketcher.Constraint("Horizontal", 37, 2, 40, 2))
sketch14.addConstraint(Sketcher.Constraint("Horizontal", 35, 2, 42, 2))
sketch14.addConstraint(Sketcher.Constraint("Horizontal", 33, 2, 44, 2))
sketch14.addConstraint(Sketcher.Constraint("Horizontal", 31, 2, 46, 2))
sketch14.addConstraint(Sketcher.Constraint("Equal", 17, 21))
sketch14.addConstraint(Sketcher.Constraint("Equal", 15, 23))
sketch14.addConstraint(Sketcher.Constraint("Equal", 13, 25))
sketch14.addConstraint(Sketcher.Constraint("Equal", 11, 31))
sketch14.addConstraint(Sketcher.Constraint("Equal", 25, 33))
sketch14.addConstraint(Sketcher.Constraint("Equal", 23, 35))
sketch14.addConstraint(Sketcher.Constraint("Equal", 21, 37))
sketch14.addConstraint(Sketcher.Constraint("Equal", 19, 39))
sketch14.addConstraint(Sketcher.Constraint("Equal", 37, 41))
sketch14.addConstraint(Sketcher.Constraint("Equal", 35, 43))
sketch14.addConstraint(Sketcher.Constraint("Equal", 33, 45))
sketch14.addConstraint(Sketcher.Constraint("Equal", 31, 47))
sketch14.addConstraint(Sketcher.Constraint("Equal", 0, 10))
sketch14.addConstraint(Sketcher.Constraint("Equal", 39, 18))
sketch14.addConstraint(Sketcher.Constraint("Equal", 26, 32))
sketch14.addConstraint(Sketcher.Constraint("Equal", 24, 34))
sketch14.addConstraint(Sketcher.Constraint("Equal", 22, 36))
sketch14.addConstraint(Sketcher.Constraint("Equal", 20, 38))
sketch14.addConstraint(Sketcher.Constraint("DistanceX", 4, 1, 4, 2, 1.0))
sketch14.addConstraint(Sketcher.Constraint("DistanceY", 3, 2, 3, 1, 17.0))
sketch14.addConstraint(Sketcher.Constraint("DistanceY", 5, 1, 5, 2, 16.0))
sketch14.addConstraint(Sketcher.Constraint("Angle", 1, Q("-45 deg")))
sketch14.addConstraint(Sketcher.Constraint("DistanceX", 11, 2, 11, 1, 1.4))
sketch14.addConstraint(Sketcher.Constraint("DistanceX", 19, 2, 19, 1, 1.5))
sketch14.addConstraint(Sketcher.Constraint("DistanceY", 16, 1, 16, 2, 0.7))
sketch14.addConstraint(Sketcher.Constraint("DistanceY", 6, 2, 10, 2, 4.0))
sketch14.addConstraint(Sketcher.Constraint("DistanceX", 21, 2, 16, 2, 1.0))
sketch14.addConstraint(Sketcher.Constraint("DistanceY", 27, 2, 30, 2, 5.0))
sketch14.addConstraint(Sketcher.Constraint("DistanceX", 31, 2, 26, 2, 5.0))
sketch14.addConstraint(Sketcher.Constraint("DistanceX", 13, 2, 13, 1, 1.65))
sketch14.addConstraint(Sketcher.Constraint("DistanceX", 15, 2, 15, 1, 2.65))
sketch14.addConstraint(Sketcher.Constraint("DistanceY", 12, 2, 12, 1, 1.15))
sketch14.addConstraint(Sketcher.Constraint("DistanceY", -1, 1, 1, 2, 50.6))
sketch14.addConstraint(Sketcher.Constraint("DistanceX", 2, 2, -1, 1, 4.9))
sketch14.addConstraint(Sketcher.Constraint("DistanceY", -1, 1, 7, 2, 47.1))
sketch14.addConstraint(Sketcher.Constraint("DistanceX", -1, 1, 13, 2, 10.2))
sketch14.addConstraint(Sketcher.Constraint("DistanceX", 2, 1, 2, 2, 2.547))
sketch14.addConstraint(Sketcher.Constraint("DistanceX", 6, 1, 6, 2, 5.4103))
sketch14.addConstraint(Sketcher.Constraint("DistanceX", 27, 2, 27, 1, 3.3255))
pad4 = body.newObject("PartDesign::Pad", "Pad003")
pad4.Profile = sketch14
pad4.Length = 4.95
pad4.Midplane = True

doc.recompute()
